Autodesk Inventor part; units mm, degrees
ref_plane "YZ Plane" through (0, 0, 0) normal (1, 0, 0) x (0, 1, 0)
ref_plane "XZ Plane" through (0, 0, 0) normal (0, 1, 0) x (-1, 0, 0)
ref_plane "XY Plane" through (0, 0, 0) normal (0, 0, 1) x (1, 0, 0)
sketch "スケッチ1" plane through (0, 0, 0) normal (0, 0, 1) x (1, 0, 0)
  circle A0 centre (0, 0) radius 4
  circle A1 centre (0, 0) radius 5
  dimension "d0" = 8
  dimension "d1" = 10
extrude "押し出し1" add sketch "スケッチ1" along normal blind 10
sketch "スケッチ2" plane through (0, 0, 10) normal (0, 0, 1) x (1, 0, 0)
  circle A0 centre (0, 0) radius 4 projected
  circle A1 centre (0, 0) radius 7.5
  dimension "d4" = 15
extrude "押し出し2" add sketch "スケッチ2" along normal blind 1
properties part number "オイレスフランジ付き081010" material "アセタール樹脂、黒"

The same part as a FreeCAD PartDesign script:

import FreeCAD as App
import Part
import Sketcher

V = App.Vector
Q = App.Units.Quantity

doc = App.newDocument("Part")
params = doc.addObject("Spreadsheet::Sheet", "Params")
for row, (alias, value) in enumerate([
    ("sketch1_diameter", "10 mm"),
    ("sketch1_diameter2", "8 mm"),
    ("pad1_length", "10 mm"),
    ("sketch2_diameter", "15 mm"),
    ("sketch2_diameter2", "8 mm"),
    ("pad2_length", "1 mm"),
], start=1):
    params.set(f"A{row}", alias)
    params.set(f"B{row}", "=" + value)
    params.setAlias(f"B{row}", alias)

body = doc.addObject("PartDesign::Body", "Body")

# Sketch on XY plane
sketch1 = doc.addObject("Sketcher::SketchObject", "Sketch")
body.addObject(sketch1)
sketch1.AttachmentSupport = (doc.XY_Plane, [""])
sketch1.MapMode = "FlatFace"
sketch1.addGeometry(Part.Circle(V(0, 0, 0), V(0, 0, 1), 5), False)
sketch1.addGeometry(Part.Circle(V(0, 0, 0), V(0, 0, 1), 4), False)
sketch1.addConstraint(Sketcher.Constraint("Coincident", 0, 3, -1, 1))
sketch1.addConstraint(Sketcher.Constraint("Coincident", 1, 3, -1, 1))
sketch1.addConstraint(Sketcher.Constraint("Diameter", 0, Q("10 mm")))
sketch1.addConstraint(Sketcher.Constraint("Diameter", 1, Q("8 mm")))
sketch1.setExpression("Constraints[2]", "Params.sketch1_diameter")
sketch1.setExpression("Constraints[3]", "Params.sketch1_diameter2")
pad1 = doc.addObject("PartDesign::Pad", "Pad")
body.addObject(pad1)
pad1.Profile = sketch1
pad1.setExpression("Length", "Params.pad1_length")

# Sketch on XY plane
sketch2 = doc.addObject("Sketcher::SketchObject", "Sketch001")
body.addObject(sketch2)
sketch2.AttachmentSupport = (doc.XY_Plane, [""])
sketch2.MapMode = "FlatFace"
sketch2.AttachmentOffset = App.Placement(V(0, 0, 10), App.Rotation())
sketch2.addGeometry(Part.Circle(V(0, 0, 0), V(0, 0, 1), 7.5), False)
sketch2.addGeometry(Part.Circle(V(0, 0, 0), V(0, 0, 1), 4), False)
sketch2.addConstraint(Sketcher.Constraint("Coincident", 0, 3, -1, 1))
sketch2.addConstraint(Sketcher.Constraint("Coincident", 1, 3, -1, 1))
sketch2.addConstraint(Sketcher.Constraint("Diameter", 0, Q("15 mm")))
sketch2.addConstraint(Sketcher.Constraint("Diameter", 1, Q("8 mm")))
sketch2.setExpression("Constraints[2]", "Params.sketch2_diameter")
sketch2.setExpression("Constraints[3]", "Params.sketch2_diameter2")
pad2 = doc.addObject("PartDesign::Pad", "Pad001")
body.addObject(pad2)
pad2.Profile = sketch2
pad2.setExpression("Length", "Params.pad2_length")

doc.recompute()
